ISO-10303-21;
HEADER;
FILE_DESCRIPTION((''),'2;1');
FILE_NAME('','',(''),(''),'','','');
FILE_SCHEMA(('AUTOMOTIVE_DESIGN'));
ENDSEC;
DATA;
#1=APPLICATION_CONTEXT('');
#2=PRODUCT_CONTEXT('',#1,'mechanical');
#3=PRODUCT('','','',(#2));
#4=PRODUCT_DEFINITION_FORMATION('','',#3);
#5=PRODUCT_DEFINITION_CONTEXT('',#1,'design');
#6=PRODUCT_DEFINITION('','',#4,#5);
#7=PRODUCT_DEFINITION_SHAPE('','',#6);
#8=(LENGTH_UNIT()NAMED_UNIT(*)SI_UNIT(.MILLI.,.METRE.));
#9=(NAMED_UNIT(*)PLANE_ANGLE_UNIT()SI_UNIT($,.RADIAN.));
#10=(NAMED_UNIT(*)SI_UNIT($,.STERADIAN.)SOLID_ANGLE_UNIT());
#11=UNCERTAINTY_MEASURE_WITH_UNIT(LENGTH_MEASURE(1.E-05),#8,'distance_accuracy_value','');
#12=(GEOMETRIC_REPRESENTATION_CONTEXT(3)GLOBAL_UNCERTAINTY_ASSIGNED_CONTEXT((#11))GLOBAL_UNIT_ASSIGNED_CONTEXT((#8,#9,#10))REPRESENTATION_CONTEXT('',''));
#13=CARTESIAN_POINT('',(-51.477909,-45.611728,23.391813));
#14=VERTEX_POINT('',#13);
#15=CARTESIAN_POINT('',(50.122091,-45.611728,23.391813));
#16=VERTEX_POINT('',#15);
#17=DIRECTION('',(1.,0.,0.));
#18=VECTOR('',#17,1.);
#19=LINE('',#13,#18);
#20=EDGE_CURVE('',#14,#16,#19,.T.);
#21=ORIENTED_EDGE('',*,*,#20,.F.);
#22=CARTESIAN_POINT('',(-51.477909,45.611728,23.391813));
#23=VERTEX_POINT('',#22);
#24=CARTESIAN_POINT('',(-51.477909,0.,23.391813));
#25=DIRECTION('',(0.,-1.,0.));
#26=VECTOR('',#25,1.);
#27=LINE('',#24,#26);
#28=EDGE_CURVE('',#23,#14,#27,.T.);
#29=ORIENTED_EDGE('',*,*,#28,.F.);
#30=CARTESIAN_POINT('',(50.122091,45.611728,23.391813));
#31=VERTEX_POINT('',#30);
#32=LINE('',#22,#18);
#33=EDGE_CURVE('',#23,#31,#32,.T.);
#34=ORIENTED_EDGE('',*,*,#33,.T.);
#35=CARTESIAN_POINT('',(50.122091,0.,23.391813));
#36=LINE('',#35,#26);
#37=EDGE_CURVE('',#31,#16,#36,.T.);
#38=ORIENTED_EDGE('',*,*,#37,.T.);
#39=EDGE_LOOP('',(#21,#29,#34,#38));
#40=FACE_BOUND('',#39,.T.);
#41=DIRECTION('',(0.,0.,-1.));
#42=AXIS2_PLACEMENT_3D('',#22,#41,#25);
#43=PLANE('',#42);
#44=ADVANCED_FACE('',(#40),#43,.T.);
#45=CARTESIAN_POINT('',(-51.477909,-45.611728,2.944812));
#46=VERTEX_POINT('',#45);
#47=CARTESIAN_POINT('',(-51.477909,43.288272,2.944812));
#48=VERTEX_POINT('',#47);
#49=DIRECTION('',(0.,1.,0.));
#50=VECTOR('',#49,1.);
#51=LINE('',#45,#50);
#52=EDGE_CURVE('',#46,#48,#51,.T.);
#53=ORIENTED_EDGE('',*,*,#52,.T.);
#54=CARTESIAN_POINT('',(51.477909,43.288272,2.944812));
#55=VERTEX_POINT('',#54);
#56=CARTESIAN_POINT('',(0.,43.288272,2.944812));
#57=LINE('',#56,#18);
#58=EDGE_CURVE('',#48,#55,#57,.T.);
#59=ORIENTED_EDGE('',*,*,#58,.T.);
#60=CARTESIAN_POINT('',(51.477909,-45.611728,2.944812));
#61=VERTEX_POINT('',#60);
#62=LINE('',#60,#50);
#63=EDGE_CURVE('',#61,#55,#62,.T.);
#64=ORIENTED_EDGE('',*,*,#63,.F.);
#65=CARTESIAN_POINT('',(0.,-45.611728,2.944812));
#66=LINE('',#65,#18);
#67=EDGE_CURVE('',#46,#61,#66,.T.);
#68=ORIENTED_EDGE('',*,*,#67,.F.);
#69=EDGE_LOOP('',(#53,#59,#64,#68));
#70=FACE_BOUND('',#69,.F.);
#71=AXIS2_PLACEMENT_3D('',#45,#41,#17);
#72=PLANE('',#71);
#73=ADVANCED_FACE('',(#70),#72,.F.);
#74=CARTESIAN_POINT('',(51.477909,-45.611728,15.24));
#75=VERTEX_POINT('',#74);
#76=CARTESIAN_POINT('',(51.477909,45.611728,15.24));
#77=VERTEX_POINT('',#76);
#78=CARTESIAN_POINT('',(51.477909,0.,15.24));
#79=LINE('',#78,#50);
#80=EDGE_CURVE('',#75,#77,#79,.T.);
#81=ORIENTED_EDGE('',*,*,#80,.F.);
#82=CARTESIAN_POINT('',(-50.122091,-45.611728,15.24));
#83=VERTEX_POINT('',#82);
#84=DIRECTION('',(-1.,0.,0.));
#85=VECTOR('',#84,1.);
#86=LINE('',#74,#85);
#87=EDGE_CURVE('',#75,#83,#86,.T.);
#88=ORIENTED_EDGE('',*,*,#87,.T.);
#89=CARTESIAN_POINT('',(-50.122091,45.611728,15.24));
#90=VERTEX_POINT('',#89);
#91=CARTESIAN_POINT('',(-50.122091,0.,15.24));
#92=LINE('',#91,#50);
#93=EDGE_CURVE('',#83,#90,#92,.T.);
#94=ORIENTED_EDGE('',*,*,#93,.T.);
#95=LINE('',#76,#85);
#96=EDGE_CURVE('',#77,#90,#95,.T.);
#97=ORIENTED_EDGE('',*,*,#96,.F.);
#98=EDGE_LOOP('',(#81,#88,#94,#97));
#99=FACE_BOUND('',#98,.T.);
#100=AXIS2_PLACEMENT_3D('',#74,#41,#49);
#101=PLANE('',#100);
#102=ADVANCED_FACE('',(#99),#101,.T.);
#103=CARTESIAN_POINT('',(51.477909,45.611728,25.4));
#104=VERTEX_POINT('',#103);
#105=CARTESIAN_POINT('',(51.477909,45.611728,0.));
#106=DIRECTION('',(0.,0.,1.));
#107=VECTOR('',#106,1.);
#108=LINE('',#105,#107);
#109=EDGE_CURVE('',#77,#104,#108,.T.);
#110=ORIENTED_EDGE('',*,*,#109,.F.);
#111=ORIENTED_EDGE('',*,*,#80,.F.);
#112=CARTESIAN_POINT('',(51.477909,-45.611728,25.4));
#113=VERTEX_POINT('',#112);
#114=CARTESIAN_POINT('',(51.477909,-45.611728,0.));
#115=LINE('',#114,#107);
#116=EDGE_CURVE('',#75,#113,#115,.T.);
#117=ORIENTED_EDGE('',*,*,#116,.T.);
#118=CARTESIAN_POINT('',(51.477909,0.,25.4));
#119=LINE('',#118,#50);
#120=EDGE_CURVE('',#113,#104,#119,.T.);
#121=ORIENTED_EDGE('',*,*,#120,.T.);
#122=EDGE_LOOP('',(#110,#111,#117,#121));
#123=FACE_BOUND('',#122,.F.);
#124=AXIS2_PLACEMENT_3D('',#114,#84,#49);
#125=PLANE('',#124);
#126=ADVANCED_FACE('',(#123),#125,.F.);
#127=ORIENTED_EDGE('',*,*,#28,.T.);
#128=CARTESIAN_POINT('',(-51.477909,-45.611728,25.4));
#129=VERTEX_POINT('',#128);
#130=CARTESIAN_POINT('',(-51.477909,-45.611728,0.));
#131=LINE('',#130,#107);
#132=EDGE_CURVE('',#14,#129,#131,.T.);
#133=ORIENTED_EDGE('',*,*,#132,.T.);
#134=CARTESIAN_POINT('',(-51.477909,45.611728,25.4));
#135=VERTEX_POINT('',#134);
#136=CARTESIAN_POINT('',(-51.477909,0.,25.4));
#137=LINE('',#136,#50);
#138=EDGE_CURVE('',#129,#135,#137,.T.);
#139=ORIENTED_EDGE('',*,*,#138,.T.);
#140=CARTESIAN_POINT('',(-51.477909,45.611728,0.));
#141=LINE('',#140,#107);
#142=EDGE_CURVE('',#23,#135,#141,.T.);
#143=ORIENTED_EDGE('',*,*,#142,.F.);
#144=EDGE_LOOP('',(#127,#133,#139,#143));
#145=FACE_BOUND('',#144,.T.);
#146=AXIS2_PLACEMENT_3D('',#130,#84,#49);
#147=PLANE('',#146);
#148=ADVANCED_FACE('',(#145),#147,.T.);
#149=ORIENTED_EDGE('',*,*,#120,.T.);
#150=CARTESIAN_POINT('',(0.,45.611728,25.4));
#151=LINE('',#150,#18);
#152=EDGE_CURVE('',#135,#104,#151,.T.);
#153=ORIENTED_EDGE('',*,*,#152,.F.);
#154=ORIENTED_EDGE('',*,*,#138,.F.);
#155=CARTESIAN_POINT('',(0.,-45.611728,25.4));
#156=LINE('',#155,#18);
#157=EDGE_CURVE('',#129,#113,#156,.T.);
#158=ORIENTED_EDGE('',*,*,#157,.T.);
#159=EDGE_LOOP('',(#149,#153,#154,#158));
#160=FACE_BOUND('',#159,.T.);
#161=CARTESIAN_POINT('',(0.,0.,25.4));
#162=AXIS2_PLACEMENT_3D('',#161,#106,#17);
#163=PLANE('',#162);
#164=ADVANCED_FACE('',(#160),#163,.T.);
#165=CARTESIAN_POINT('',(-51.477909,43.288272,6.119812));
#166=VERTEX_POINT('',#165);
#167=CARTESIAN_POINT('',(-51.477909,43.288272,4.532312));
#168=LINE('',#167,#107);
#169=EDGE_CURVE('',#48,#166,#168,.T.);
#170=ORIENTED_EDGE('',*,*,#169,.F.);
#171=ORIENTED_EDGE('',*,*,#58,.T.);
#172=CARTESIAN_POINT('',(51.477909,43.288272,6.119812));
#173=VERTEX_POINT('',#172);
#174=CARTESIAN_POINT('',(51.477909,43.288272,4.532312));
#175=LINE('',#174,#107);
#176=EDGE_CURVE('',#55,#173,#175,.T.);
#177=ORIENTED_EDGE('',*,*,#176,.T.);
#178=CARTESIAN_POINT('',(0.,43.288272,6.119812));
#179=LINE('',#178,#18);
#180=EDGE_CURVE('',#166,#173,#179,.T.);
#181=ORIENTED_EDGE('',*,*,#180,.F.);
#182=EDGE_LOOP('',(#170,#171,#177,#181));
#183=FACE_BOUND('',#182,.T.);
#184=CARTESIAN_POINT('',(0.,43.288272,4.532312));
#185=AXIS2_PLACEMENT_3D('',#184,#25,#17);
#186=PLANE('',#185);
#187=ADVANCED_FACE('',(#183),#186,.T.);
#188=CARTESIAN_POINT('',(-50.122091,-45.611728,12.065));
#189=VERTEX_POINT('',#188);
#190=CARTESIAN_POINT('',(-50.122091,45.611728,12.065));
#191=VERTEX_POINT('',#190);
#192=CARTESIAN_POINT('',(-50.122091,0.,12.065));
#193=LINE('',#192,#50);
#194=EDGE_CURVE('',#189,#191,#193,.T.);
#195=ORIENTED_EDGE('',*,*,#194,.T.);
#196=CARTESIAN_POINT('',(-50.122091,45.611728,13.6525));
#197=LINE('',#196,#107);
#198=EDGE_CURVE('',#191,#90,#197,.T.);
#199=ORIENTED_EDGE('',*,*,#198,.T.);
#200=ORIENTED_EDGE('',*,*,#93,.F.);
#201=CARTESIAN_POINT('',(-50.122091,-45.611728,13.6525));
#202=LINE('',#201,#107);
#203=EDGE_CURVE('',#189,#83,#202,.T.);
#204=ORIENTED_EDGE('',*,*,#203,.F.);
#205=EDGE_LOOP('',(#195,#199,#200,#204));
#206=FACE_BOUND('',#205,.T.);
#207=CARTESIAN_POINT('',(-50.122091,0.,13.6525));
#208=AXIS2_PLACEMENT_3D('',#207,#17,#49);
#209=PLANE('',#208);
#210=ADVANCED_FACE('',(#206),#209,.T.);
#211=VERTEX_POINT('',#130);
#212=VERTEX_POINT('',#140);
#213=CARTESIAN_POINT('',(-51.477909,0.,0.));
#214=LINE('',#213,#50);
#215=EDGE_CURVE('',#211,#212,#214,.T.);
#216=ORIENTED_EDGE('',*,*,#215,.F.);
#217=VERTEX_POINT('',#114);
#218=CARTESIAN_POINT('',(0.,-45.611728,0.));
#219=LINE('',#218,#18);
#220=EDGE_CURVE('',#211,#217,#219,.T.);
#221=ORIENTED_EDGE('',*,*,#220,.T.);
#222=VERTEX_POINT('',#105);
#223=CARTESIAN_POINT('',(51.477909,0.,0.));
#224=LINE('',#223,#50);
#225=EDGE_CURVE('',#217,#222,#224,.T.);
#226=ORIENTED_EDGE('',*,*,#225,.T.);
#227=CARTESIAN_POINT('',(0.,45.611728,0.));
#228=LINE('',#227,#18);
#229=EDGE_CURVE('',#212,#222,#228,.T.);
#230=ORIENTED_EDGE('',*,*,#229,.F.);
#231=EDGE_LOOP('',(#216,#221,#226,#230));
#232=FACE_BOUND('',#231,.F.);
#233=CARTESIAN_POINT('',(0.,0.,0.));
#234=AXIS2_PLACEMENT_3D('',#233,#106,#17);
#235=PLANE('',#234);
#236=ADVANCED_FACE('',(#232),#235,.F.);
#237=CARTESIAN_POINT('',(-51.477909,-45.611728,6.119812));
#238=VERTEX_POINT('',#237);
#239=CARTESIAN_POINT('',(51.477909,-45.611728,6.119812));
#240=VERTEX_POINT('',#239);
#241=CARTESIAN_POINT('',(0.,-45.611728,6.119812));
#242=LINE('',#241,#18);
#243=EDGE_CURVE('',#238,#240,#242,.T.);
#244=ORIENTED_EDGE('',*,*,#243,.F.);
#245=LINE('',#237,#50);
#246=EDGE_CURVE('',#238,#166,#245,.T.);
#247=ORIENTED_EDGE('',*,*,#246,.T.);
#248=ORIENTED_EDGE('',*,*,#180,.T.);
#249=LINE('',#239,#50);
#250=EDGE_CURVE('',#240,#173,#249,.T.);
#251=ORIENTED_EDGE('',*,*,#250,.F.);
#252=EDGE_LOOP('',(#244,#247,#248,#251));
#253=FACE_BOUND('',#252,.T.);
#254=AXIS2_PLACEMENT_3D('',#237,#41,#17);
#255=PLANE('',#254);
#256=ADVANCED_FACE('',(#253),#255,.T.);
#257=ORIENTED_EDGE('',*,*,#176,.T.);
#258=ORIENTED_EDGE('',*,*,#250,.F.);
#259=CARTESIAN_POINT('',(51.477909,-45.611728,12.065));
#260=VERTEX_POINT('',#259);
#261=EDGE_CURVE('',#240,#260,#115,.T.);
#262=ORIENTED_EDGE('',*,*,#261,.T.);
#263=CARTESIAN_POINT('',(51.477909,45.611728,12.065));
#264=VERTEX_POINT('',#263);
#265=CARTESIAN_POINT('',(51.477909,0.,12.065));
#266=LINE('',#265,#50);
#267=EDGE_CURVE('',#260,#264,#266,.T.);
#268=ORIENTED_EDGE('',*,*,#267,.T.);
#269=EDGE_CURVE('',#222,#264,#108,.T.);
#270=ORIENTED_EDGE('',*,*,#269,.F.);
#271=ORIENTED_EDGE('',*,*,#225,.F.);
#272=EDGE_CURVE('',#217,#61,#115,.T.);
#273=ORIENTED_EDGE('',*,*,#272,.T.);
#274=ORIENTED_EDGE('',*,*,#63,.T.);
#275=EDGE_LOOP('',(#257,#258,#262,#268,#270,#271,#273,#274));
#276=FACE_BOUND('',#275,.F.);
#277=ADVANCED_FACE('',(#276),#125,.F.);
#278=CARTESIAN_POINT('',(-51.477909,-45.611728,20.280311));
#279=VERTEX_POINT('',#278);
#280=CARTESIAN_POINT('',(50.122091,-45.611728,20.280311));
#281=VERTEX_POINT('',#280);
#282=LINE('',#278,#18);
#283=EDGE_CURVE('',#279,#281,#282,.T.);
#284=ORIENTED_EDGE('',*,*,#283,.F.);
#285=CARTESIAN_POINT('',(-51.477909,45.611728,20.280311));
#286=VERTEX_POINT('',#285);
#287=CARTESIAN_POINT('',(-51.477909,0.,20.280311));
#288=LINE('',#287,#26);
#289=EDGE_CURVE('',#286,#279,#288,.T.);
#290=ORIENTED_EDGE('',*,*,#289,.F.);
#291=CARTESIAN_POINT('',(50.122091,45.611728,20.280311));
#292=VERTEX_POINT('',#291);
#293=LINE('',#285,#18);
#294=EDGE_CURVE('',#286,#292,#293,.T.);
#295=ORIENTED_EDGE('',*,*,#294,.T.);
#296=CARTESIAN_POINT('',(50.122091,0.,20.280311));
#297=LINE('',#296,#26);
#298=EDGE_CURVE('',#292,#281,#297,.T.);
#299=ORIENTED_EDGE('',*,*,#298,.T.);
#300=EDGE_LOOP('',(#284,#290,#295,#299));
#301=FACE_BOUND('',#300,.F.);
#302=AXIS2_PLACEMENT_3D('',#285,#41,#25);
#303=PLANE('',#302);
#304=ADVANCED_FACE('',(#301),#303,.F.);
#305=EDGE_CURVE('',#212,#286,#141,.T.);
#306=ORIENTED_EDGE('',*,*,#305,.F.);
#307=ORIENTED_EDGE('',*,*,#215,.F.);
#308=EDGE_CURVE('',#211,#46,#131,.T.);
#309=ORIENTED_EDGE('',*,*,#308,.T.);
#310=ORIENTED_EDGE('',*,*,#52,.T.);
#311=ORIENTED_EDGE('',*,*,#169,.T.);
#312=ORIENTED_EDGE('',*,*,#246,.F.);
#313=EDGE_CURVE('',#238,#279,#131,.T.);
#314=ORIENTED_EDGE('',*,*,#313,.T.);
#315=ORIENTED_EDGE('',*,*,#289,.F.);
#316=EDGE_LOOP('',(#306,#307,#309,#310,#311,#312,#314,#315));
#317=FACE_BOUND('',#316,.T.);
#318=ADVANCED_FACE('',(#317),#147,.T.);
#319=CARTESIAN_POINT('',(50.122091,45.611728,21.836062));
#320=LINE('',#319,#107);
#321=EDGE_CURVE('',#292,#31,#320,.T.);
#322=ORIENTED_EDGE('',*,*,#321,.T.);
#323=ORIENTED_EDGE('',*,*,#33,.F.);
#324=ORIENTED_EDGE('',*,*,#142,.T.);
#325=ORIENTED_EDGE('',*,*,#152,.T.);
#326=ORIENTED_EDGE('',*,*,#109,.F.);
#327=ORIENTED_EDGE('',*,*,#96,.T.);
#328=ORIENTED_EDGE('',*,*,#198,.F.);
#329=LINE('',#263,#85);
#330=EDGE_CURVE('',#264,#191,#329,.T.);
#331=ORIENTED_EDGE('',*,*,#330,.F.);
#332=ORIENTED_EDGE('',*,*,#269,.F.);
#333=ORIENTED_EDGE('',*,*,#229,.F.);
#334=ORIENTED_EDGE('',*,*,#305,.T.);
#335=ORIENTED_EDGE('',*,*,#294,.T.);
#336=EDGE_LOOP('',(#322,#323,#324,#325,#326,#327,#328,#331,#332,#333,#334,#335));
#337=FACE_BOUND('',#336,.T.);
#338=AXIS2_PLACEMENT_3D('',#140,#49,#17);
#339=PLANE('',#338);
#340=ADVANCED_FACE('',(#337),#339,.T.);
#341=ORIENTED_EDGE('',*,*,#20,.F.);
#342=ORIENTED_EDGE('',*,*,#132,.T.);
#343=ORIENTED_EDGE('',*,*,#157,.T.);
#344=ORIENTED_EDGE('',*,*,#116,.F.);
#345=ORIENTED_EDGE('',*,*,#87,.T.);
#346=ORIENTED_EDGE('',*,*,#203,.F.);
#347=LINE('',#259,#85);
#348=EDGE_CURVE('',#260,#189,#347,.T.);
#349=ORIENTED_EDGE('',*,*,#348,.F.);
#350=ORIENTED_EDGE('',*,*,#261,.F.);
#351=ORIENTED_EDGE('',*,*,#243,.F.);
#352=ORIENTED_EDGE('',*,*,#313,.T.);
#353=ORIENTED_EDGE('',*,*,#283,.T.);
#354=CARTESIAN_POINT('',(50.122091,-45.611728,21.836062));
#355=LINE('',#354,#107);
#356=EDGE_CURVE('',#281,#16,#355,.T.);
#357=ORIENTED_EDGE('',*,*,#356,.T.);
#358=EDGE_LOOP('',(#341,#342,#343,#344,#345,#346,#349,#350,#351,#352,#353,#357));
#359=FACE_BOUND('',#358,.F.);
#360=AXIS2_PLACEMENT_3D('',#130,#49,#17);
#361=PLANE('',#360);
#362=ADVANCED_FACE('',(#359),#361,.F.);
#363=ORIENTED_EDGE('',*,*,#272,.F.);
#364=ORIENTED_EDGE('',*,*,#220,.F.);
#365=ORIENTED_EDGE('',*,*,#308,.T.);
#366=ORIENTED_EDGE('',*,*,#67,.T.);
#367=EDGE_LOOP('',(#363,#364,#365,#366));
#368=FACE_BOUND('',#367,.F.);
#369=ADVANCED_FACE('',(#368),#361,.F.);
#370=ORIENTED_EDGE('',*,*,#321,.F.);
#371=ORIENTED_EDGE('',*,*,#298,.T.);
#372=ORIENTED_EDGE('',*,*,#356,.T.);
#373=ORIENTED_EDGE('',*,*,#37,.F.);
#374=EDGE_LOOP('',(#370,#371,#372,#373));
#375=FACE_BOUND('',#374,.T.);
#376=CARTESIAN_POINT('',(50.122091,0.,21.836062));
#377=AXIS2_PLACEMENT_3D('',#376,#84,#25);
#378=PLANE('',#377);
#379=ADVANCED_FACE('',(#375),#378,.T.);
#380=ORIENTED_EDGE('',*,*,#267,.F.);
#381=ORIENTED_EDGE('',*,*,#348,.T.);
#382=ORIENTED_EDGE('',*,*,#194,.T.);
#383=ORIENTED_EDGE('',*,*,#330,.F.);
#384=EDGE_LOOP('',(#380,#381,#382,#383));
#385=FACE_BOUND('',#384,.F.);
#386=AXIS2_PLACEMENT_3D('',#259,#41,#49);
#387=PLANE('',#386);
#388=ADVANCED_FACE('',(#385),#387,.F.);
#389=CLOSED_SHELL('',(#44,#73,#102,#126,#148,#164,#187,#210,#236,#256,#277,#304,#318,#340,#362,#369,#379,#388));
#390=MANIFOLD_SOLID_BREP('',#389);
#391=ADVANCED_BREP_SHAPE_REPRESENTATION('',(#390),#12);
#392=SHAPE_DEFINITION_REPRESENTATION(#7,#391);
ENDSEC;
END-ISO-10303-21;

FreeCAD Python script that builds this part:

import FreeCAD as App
import Part
import Sketcher

V = App.Vector
Q = App.Units.Quantity


def add_polygon(sketch, points):
    """Adds a closed chain of lines whose ends are joined by coincident constraints."""
    first, n = sketch.GeometryCount, len(points)
    for a, b in zip(points, points[1:] + points[:1]):
        sketch.addGeometry(Part.LineSegment(App.Vector(*a, 0), App.Vector(*b, 0)), False)
    for i in range(n):
        sketch.addConstraint(Sketcher.Constraint("Coincident", first + i, 2, first + (i + 1) % n, 1))

doc = App.newDocument("Part")
body = doc.addObject("PartDesign::Body", "Body")

sketch1 = body.newObject("Sketcher::SketchObject", "Sketch")
sketch1.AttachmentSupport = (doc.getObject("XY_Plane"), [""])
sketch1.MapMode = "FlatFace"
add_polygon(sketch1, [(-51, 46), (-51, -46), (51, -46), (51, 46)])
sketch1.addConstraint([
    Sketcher.Constraint("Vertical", 0),
    Sketcher.Constraint("Horizontal", 1),
    Sketcher.Constraint("Vertical", 2),
    Sketcher.Constraint("Horizontal", 3),
    Sketcher.Constraint("Symmetric", 0, 2, 2, 2, -1, 1),
    Sketcher.Constraint("DistanceX", 1, 1, 1, 2, 102.955818),
    Sketcher.Constraint("DistanceY", 0, 2, 0, 1, 91.223456),
])
pad1 = body.newObject("PartDesign::Pad", "Pad")
pad1.Profile = sketch1
pad1.Length = Q("1 in")

sketch2 = body.newObject("Sketcher::SketchObject", "Sketch001")
sketch2.AttachmentSupport = (doc.getObject("YZ_Plane"), [""])
sketch2.MapMode = "FlatFace"
sketch2.AttachmentOffset = App.Placement(V(0, 0, -51.477909), App.Rotation())
add_polygon(sketch2, [(45.6, 23.4), (45.6, 20.3), (-45.6, 20.3), (-45.6, 23.4)])
sketch2.addConstraint([
    Sketcher.Constraint("Vertical", 0),
    Sketcher.Constraint("Horizontal", 1),
    Sketcher.Constraint("Vertical", 2),
    Sketcher.Constraint("Horizontal", 3),
    Sketcher.Constraint("DistanceY", 0, 2, 0, 1, Q("0.1225001 in")),
    Sketcher.Constraint("DistanceX", 1, 2, 1, 1, 91.223456),
    Sketcher.Constraint("DistanceY", -1, 1, 0, 2, 20.280311),
    Sketcher.Constraint("DistanceX", -1, 1, 0, 2, 45.611728),
])
pocket1 = body.newObject("PartDesign::Pocket", "Pocket")
pocket1.Profile = sketch2
pocket1.Length = Q("4 in")
pocket1.Reversed = True

sketch3 = body.newObject("Sketcher::SketchObject", "Sketch002")
sketch3.AttachmentSupport = (doc.getObject("YZ_Plane"), [""])
sketch3.MapMode = "FlatFace"
sketch3.AttachmentOffset = App.Placement(V(0, 0, 51.477909), App.Rotation())
add_polygon(sketch3, [(-45.6, 15.2), (-45.6, 12.1), (45.6, 12.1), (45.6, 15.2)])
sketch3.addConstraint([
    Sketcher.Constraint("Vertical", 0),
    Sketcher.Constraint("Horizontal", 1),
    Sketcher.Constraint("Vertical", 2),
    Sketcher.Constraint("Horizontal", 3),
    Sketcher.Constraint("DistanceY", -1, 1, 2, 2, Q("0.6 in")),
    Sketcher.Constraint("DistanceY", 0, 2, 0, 1, Q("0.125 in")),
    Sketcher.Constraint("DistanceX", 1, 1, 1, 2, 91.223456),
    Sketcher.Constraint("DistanceX", 0, 2, -1, 1, 45.611728),
])
pocket2 = body.newObject("PartDesign::Pocket", "Pocket001")
pocket2.Profile = sketch3
pocket2.Length = Q("4 in")

sketch4 = body.newObject("Sketcher::SketchObject", "Sketch003")
sketch4.AttachmentSupport = (doc.getObject("XZ_Plane"), [""])
sketch4.MapMode = "FlatFace"
sketch4.AttachmentOffset = App.Placement(V(0, 0, 45.611728), App.Rotation())
add_polygon(sketch4, [(-51.5, 6.1), (-51.5, 2.9), (51.5, 2.9), (51.5, 6.1)])
sketch4.addConstraint([
    Sketcher.Constraint("Vertical", 0),
    Sketcher.Constraint("Horizontal", 1),
    Sketcher.Constraint("Vertical", 2),
    Sketcher.Constraint("Horizontal", 3),
    Sketcher.Constraint("DistanceY", 0, 2, 0, 1, Q("0.125 in")),
    Sketcher.Constraint("DistanceX", 1, 1, 1, 2, 102.955818),
    Sketcher.Constraint("DistanceX", 0, 2, -1, 1, 51.477909),
    Sketcher.Constraint("DistanceY", -1, 1, 2, 2, 6.119812),
])
pocket3 = body.newObject("PartDesign::Pocket", "Pocket002")
pocket3.Profile = sketch4
pocket3.Length = Q("3.5 in")

doc.recompute()
